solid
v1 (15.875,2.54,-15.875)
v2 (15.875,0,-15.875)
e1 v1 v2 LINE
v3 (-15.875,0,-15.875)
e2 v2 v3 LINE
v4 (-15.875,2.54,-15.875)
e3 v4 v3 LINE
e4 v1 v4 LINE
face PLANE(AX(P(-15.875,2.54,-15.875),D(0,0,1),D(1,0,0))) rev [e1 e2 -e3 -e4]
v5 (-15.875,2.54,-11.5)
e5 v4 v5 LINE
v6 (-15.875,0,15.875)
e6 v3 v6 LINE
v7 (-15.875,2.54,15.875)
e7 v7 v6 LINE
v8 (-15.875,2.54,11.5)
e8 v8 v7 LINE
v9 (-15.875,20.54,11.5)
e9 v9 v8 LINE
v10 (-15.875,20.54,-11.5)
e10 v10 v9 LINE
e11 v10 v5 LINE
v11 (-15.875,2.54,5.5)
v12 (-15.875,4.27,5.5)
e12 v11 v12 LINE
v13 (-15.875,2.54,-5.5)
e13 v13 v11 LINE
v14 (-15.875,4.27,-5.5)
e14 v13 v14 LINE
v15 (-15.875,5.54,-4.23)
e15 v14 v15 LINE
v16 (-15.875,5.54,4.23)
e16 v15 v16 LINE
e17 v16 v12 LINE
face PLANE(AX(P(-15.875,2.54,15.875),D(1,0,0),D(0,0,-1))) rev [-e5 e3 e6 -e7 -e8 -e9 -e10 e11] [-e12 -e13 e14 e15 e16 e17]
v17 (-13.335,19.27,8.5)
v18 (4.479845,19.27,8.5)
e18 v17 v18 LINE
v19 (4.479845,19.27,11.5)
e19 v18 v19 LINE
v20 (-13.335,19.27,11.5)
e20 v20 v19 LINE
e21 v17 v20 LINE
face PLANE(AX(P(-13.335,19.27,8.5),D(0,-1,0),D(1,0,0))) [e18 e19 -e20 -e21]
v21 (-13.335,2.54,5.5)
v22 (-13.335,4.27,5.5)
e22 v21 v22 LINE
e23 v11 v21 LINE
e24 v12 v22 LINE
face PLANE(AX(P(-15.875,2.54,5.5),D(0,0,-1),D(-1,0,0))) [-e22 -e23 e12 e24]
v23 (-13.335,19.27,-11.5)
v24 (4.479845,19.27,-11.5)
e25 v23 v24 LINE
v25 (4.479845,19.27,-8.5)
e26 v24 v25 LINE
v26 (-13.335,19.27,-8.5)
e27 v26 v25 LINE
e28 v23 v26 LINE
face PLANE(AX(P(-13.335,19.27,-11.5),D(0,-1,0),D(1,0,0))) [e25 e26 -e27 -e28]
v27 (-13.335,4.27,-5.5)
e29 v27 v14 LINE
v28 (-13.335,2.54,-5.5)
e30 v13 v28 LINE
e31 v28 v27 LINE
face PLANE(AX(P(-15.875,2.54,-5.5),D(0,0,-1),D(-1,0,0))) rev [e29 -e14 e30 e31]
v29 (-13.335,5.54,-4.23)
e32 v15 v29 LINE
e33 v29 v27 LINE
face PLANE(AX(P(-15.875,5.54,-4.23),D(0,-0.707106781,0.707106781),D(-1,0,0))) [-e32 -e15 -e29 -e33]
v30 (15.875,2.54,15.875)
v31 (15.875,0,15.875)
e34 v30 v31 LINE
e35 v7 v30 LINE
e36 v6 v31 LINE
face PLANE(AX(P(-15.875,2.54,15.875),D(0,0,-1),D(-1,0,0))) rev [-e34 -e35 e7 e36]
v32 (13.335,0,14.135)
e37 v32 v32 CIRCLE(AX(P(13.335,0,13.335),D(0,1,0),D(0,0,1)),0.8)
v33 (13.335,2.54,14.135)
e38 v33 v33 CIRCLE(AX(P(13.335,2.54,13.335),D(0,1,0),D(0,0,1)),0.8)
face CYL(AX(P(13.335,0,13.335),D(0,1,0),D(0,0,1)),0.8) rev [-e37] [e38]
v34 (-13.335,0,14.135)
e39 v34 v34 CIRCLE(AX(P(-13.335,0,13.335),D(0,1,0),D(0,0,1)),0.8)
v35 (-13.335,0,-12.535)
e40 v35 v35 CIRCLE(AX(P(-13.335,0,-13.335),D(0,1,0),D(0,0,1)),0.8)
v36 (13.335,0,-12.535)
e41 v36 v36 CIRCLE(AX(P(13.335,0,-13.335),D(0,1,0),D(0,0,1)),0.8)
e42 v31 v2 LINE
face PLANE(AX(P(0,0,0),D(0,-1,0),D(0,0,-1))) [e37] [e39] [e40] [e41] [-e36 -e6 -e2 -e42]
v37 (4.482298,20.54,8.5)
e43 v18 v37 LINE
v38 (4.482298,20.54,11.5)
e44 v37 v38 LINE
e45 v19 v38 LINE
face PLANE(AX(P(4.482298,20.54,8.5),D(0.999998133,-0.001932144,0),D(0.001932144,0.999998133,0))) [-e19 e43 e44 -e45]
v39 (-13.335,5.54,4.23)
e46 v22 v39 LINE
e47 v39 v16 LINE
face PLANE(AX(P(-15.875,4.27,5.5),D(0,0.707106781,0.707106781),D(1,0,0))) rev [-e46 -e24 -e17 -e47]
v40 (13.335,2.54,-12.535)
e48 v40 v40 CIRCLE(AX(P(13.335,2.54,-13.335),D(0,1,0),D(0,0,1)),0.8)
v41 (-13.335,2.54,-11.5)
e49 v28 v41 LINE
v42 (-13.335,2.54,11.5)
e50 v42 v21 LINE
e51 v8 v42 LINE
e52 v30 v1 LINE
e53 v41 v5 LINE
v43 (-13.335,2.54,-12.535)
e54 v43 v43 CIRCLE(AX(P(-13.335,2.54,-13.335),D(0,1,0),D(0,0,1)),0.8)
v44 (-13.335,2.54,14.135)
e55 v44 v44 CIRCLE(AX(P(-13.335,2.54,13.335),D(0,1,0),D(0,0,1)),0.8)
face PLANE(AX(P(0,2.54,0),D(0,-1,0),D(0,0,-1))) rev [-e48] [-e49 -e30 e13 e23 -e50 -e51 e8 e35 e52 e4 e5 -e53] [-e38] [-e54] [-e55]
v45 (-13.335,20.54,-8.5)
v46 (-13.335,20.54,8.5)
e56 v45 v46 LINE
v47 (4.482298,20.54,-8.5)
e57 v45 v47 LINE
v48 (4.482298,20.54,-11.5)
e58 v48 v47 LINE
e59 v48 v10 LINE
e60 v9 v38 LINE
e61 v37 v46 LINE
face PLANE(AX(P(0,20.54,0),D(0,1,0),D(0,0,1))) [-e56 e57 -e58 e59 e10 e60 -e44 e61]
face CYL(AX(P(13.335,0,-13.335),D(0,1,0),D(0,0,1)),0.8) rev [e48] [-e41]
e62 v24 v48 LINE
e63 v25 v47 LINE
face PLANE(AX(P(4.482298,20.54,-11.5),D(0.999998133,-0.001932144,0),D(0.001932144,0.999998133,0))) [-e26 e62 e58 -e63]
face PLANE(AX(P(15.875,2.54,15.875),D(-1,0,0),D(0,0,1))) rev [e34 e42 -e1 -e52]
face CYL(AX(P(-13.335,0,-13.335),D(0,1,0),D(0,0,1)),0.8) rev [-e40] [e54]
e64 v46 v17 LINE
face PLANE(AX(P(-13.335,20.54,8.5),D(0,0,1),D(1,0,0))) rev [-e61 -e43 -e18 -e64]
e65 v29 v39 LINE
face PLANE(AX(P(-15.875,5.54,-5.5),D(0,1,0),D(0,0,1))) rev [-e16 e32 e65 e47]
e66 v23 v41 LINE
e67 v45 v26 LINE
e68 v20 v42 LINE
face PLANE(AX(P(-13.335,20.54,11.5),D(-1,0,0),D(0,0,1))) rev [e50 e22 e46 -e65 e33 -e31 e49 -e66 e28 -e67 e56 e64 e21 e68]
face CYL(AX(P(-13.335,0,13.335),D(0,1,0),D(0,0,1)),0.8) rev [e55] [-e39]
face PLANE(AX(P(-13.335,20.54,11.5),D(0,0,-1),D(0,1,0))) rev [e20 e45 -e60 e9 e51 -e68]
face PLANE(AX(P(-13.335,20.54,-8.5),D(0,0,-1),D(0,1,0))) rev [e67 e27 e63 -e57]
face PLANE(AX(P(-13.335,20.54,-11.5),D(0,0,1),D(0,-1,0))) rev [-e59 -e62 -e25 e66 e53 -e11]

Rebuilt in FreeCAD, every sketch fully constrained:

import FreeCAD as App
import Part
import Sketcher
from FreeCAD import Vector
Q = App.Units.Quantity


def edges_at(feature, points):
    """Names of the edges that pass closest to the given points."""
    edges = feature.Shape.Edges
    near = lambda p: min(range(len(edges)), key=lambda i: edges[i].distToShape(Part.Vertex(*p))[0])
    return sorted({f"Edge{near(p) + 1}" for p in points})

doc = App.newDocument("Part")
body = doc.addObject("PartDesign::Body", "Body")

sketch1 = body.newObject("Sketcher::SketchObject", "Sketch")
sketch1.AttachmentSupport = (doc.getObject("XZ_Plane"), [""])
sketch1.MapMode = "FlatFace"
sketch1.addGeometry([
    Part.LineSegment(Vector(-16, -16, 0), Vector(-16, 16, 0)),
    Part.LineSegment(Vector(-16, 16, 0), Vector(16, 16, 0)),
    Part.LineSegment(Vector(16, 16, 0), Vector(16, -16, 0)),
    Part.LineSegment(Vector(16, -16, 0), Vector(-16, -16, 0)),
], False)
sketch1.addConstraint([
    Sketcher.Constraint("Coincident", 0, 2, 1, 1),
    Sketcher.Constraint("Coincident", 1, 2, 2, 1),
    Sketcher.Constraint("Coincident", 2, 2, 3, 1),
    Sketcher.Constraint("Coincident", 3, 2, 0, 1),
    Sketcher.Constraint("Vertical", 0),
    Sketcher.Constraint("Horizontal", 1),
    Sketcher.Constraint("Vertical", 2),
    Sketcher.Constraint("Horizontal", 3),
    Sketcher.Constraint("Symmetric", 0, 2, 2, 2, -1, 1),
    Sketcher.Constraint("Equal", 3, 0),
    Sketcher.Constraint("DistanceX", 1, 1, 1, 2, Q("31.75 mm")),
])
pad1 = body.newObject("PartDesign::Pad", "Pad")
pad1.Profile = sketch1
pad1.Length = 2.54
pad1.Reversed = True

sketch2 = body.newObject("Sketcher::SketchObject", "Sketch001")
sketch2.AttachmentSupport = (doc.getObject("XZ_Plane"), [""])
sketch2.MapMode = "FlatFace"
sketch2.AttachmentOffset = App.Placement(Vector(0, 0, -2.54), App.Rotation())
sketch2.addGeometry([
    Part.LineSegment(Vector(-15.9, 8.5, 0), Vector(-15.9, 11.5, 0)),
    Part.LineSegment(Vector(-15.9, 11.5, 0), Vector(-13.3, 11.5, 0)),
    Part.LineSegment(Vector(-13.3, 11.5, 0), Vector(-13.3, 8.5, 0)),
    Part.LineSegment(Vector(-13.3, 8.5, 0), Vector(-15.9, 8.5, 0)),
    Part.LineSegment(Vector(-15.9, -11.5, 0), Vector(-15.9, -8.5, 0)),
    Part.LineSegment(Vector(-15.9, -8.5, 0), Vector(-13.3, -8.5, 0)),
    Part.LineSegment(Vector(-13.3, -8.5, 0), Vector(-13.3, -11.5, 0)),
    Part.LineSegment(Vector(-13.3, -11.5, 0), Vector(-15.9, -11.5, 0)),
], False)
sketch2.addConstraint([
    Sketcher.Constraint("Coincident", 0, 2, 1, 1),
    Sketcher.Constraint("Coincident", 1, 2, 2, 1),
    Sketcher.Constraint("Coincident", 2, 2, 3, 1),
    Sketcher.Constraint("Coincident", 3, 2, 0, 1),
    Sketcher.Constraint("Coincident", 4, 2, 5, 1),
    Sketcher.Constraint("Coincident", 5, 2, 6, 1),
    Sketcher.Constraint("Coincident", 6, 2, 7, 1),
    Sketcher.Constraint("Coincident", 7, 2, 4, 1),
    Sketcher.Constraint("Vertical", 0),
    Sketcher.Constraint("Horizontal", 1),
    Sketcher.Constraint("Vertical", 2),
    Sketcher.Constraint("Horizontal", 3),
    Sketcher.Constraint("Vertical", 4),
    Sketcher.Constraint("Horizontal", 5),
    Sketcher.Constraint("Vertical", 6),
    Sketcher.Constraint("Horizontal", 7),
    Sketcher.Constraint("Symmetric", 3, 2, 4, 2, -1),
    Sketcher.Constraint("Symmetric", 1, 2, 6, 2, -1),
    Sketcher.Constraint("DistanceY", 0, 1, 0, 2, Q("3 mm")),
    Sketcher.Constraint("DistanceY", 4, 2, 3, 2, Q("17 mm")),
    Sketcher.Constraint("DistanceX", 1, 1, 1, 2, Q("2.54 mm")),
    Sketcher.Constraint("DistanceX", 0, 2, -1, 1, Q("15.875 mm")),
])
pad2 = body.newObject("PartDesign::Pad", "Pad001")
pad2.Profile = sketch2
pad2.Length = 18
pad2.Reversed = True

sketch3 = body.newObject("Sketcher::SketchObject", "Sketch002")
sketch3.AttachmentSupport = (doc.getObject("XY_Plane"), [""])
sketch3.MapMode = "FlatFace"
sketch3.AttachmentOffset = App.Placement(Vector(0, 0, 11.5), App.Rotation())
sketch3.addGeometry([
    Part.LineSegment(Vector(-13.3, 20.5, 0), Vector(-13.3, 19.3, 0)),
    Part.LineSegment(Vector(-13.3, 19.3, 0), Vector(4.5, 19.3, 0)),
    Part.LineSegment(Vector(4.5, 19.3, 0), Vector(4.5, 20.5, 0)),
    Part.LineSegment(Vector(4.5, 20.5, 0), Vector(-13.3, 20.5, 0)),
], False)
sketch3.addConstraint([
    Sketcher.Constraint("Coincident", 0, 2, 1, 1),
    Sketcher.Constraint("Coincident", 1, 2, 2, 1),
    Sketcher.Constraint("Coincident", 2, 2, 3, 1),
    Sketcher.Constraint("Coincident", 3, 2, 0, 1),
    Sketcher.Constraint("Vertical", 0),
    Sketcher.Constraint("Horizontal", 1),
    Sketcher.Constraint("Horizontal", 3),
    Sketcher.Constraint("DistanceY", 0, 2, 0, 1, Q("1.27 mm")),
    Sketcher.Constraint("DistanceY", -1, 1, 0, 2, Q("19.27 mm")),
    Sketcher.Constraint("DistanceX", 3, 2, 3, 1, Q("17.817298 mm")),
    Sketcher.Constraint("DistanceX", 0, 2, -1, 1, Q("13.335 mm")),
    Sketcher.Constraint("DistanceX", 1, 1, 1, 2, Q("17.814845 mm")),
])
pad3 = body.newObject("PartDesign::Pad", "Pad002")
pad3.Profile = sketch3
pad3.Length = 3
pad3.Reversed = True
doc.recompute()

linearpattern = body.newObject("PartDesign::LinearPattern", "LinearPattern")
linearpattern.Originals = [pad3]
linearpattern.Direction = (doc.getObject("Z_Axis"), [""])
linearpattern.Mode = "offset"
linearpattern.Offset = 20
linearpattern.Occurrences = 2
linearpattern.Reversed = True
body.Tip = linearpattern

sketch4 = body.newObject("Sketcher::SketchObject", "Sketch003")
sketch4.AttachmentSupport = (doc.getObject("XZ_Plane"), [""])
sketch4.MapMode = "FlatFace"
sketch4.AttachmentOffset = App.Placement(Vector(0, 0, -2.54), App.Rotation())
sketch4.addGeometry([
    Part.Circle(Vector(13.3, -13.3, 0), Vector(0, 0, 1), 0.8),
    Part.Circle(Vector(-13.3, -13.3, 0), Vector(0, 0, 1), 0.8),
    Part.Circle(Vector(-13.3, 13.3, 0), Vector(0, 0, 1), 0.8),
    Part.Circle(Vector(13.3, 13.3, 0), Vector(0, 0, 1), 0.8),
], False)
sketch4.addConstraint([
    Sketcher.Constraint("Equal", 0, 1),
    Sketcher.Constraint("Equal", 1, 2),
    Sketcher.Constraint("Equal", 2, 3),
    Sketcher.Constraint("Symmetric", 0, 3, 2, 3, -1, 1),
    Sketcher.Constraint("Symmetric", 1, 3, 3, 3, -1, 1),
    Sketcher.Constraint("Symmetric", 0, 3, 1, 3, -2),
    Sketcher.Constraint("Diameter", 0, Q("1.6 mm")),
    Sketcher.Constraint("DistanceX", 1, 3, 0, 3, Q("26.67 mm")),
    Sketcher.Constraint("DistanceY", 1, 3, 2, 3, Q("26.67 mm")),
])
pocket1 = body.newObject("PartDesign::Pocket", "Pocket")
pocket1.Profile = sketch4
pocket1.Type = "ThroughAll"
pocket1.Reversed = True

sketch5 = body.newObject("Sketcher::SketchObject", "Sketch004")
sketch5.AttachmentSupport = (doc.getObject("XY_Plane"), [""])
sketch5.MapMode = "FlatFace"
sketch5.AttachmentOffset = App.Placement(Vector(0, 0, 8.5), App.Rotation())
sketch5.addGeometry([
    Part.LineSegment(Vector(-13.3, 20.5, 0), Vector(-13.3, 2.5, 0)),
    Part.LineSegment(Vector(-13.3, 2.5, 0), Vector(-15.9, 2.5, 0)),
    Part.LineSegment(Vector(-15.9, 2.5, 0), Vector(-15.9, 20.5, 0)),
    Part.LineSegment(Vector(-15.9, 20.5, 0), Vector(-13.3, 20.5, 0)),
], False)
sketch5.addConstraint([
    Sketcher.Constraint("Coincident", 0, 2, 1, 1),
    Sketcher.Constraint("Coincident", 1, 2, 2, 1),
    Sketcher.Constraint("Coincident", 2, 2, 3, 1),
    Sketcher.Constraint("Coincident", 3, 2, 0, 1),
    Sketcher.Constraint("Vertical", 0),
    Sketcher.Constraint("Horizontal", 1),
    Sketcher.Constraint("Vertical", 2),
    Sketcher.Constraint("Horizontal", 3),
    Sketcher.Constraint("DistanceY", 0, 2, 0, 1, Q("18 mm")),
    Sketcher.Constraint("DistanceX", 1, 2, 1, 1, Q("2.54 mm")),
    Sketcher.Constraint("DistanceY", -1, 1, 0, 2, Q("2.54 mm")),
    Sketcher.Constraint("DistanceX", 0, 2, -1, 1, Q("13.335 mm")),
])
pad4 = body.newObject("PartDesign::Pad", "Pad003")
pad4.Profile = sketch5
pad4.Length = 17
pad4.Reversed = True

sketch6 = body.newObject("Sketcher::SketchObject", "Sketch005")
sketch6.AttachmentSupport = (doc.getObject("YZ_Plane"), [""])
sketch6.MapMode = "FlatFace"
sketch6.AttachmentOffset = App.Placement(Vector(0, 0, -13.335), App.Rotation())
sketch6.addGeometry([
    Part.LineSegment(Vector(5.5, 5.5, 0), Vector(2.5, 5.5, 0)),
    Part.LineSegment(Vector(2.5, 5.5, 0), Vector(2.5, -5.5, 0)),
    Part.LineSegment(Vector(2.5, -5.5, 0), Vector(5.5, -5.5, 0)),
    Part.LineSegment(Vector(5.5, -5.5, 0), Vector(5.5, 5.5, 0)),
], False)
sketch6.addConstraint([
    Sketcher.Constraint("Coincident", 0, 2, 1, 1),
    Sketcher.Constraint("Coincident", 1, 2, 2, 1),
    Sketcher.Constraint("Coincident", 2, 2, 3, 1),
    Sketcher.Constraint("Coincident", 3, 2, 0, 1),
    Sketcher.Constraint("Horizontal", 0),
    Sketcher.Constraint("Vertical", 1),
    Sketcher.Constraint("Horizontal", 2),
    Sketcher.Constraint("Vertical", 3),
    Sketcher.Constraint("DistanceX", 0, 2, 0, 1, Q("3 mm")),
    Sketcher.Constraint("DistanceY", 1, 2, 1, 1, Q("11 mm")),
    Sketcher.Constraint("DistanceY", -1, 1, 0, 2, Q("5.5 mm")),
    Sketcher.Constraint("DistanceX", -1, 1, 0, 2, Q("2.54 mm")),
])
pocket2 = body.newObject("PartDesign::Pocket", "Pocket001")
pocket2.Profile = sketch6
pocket2.Length = 2.54
doc.recompute()

chamfer = body.newObject("PartDesign::Chamfer", "Chamfer")
chamfer.Base = (pocket2, edges_at(pocket2, [(-14.605, 5.54, -5.5), (-14.605, 5.54, 5.5)]))
chamfer.Size = 1.27

doc.recompute()
